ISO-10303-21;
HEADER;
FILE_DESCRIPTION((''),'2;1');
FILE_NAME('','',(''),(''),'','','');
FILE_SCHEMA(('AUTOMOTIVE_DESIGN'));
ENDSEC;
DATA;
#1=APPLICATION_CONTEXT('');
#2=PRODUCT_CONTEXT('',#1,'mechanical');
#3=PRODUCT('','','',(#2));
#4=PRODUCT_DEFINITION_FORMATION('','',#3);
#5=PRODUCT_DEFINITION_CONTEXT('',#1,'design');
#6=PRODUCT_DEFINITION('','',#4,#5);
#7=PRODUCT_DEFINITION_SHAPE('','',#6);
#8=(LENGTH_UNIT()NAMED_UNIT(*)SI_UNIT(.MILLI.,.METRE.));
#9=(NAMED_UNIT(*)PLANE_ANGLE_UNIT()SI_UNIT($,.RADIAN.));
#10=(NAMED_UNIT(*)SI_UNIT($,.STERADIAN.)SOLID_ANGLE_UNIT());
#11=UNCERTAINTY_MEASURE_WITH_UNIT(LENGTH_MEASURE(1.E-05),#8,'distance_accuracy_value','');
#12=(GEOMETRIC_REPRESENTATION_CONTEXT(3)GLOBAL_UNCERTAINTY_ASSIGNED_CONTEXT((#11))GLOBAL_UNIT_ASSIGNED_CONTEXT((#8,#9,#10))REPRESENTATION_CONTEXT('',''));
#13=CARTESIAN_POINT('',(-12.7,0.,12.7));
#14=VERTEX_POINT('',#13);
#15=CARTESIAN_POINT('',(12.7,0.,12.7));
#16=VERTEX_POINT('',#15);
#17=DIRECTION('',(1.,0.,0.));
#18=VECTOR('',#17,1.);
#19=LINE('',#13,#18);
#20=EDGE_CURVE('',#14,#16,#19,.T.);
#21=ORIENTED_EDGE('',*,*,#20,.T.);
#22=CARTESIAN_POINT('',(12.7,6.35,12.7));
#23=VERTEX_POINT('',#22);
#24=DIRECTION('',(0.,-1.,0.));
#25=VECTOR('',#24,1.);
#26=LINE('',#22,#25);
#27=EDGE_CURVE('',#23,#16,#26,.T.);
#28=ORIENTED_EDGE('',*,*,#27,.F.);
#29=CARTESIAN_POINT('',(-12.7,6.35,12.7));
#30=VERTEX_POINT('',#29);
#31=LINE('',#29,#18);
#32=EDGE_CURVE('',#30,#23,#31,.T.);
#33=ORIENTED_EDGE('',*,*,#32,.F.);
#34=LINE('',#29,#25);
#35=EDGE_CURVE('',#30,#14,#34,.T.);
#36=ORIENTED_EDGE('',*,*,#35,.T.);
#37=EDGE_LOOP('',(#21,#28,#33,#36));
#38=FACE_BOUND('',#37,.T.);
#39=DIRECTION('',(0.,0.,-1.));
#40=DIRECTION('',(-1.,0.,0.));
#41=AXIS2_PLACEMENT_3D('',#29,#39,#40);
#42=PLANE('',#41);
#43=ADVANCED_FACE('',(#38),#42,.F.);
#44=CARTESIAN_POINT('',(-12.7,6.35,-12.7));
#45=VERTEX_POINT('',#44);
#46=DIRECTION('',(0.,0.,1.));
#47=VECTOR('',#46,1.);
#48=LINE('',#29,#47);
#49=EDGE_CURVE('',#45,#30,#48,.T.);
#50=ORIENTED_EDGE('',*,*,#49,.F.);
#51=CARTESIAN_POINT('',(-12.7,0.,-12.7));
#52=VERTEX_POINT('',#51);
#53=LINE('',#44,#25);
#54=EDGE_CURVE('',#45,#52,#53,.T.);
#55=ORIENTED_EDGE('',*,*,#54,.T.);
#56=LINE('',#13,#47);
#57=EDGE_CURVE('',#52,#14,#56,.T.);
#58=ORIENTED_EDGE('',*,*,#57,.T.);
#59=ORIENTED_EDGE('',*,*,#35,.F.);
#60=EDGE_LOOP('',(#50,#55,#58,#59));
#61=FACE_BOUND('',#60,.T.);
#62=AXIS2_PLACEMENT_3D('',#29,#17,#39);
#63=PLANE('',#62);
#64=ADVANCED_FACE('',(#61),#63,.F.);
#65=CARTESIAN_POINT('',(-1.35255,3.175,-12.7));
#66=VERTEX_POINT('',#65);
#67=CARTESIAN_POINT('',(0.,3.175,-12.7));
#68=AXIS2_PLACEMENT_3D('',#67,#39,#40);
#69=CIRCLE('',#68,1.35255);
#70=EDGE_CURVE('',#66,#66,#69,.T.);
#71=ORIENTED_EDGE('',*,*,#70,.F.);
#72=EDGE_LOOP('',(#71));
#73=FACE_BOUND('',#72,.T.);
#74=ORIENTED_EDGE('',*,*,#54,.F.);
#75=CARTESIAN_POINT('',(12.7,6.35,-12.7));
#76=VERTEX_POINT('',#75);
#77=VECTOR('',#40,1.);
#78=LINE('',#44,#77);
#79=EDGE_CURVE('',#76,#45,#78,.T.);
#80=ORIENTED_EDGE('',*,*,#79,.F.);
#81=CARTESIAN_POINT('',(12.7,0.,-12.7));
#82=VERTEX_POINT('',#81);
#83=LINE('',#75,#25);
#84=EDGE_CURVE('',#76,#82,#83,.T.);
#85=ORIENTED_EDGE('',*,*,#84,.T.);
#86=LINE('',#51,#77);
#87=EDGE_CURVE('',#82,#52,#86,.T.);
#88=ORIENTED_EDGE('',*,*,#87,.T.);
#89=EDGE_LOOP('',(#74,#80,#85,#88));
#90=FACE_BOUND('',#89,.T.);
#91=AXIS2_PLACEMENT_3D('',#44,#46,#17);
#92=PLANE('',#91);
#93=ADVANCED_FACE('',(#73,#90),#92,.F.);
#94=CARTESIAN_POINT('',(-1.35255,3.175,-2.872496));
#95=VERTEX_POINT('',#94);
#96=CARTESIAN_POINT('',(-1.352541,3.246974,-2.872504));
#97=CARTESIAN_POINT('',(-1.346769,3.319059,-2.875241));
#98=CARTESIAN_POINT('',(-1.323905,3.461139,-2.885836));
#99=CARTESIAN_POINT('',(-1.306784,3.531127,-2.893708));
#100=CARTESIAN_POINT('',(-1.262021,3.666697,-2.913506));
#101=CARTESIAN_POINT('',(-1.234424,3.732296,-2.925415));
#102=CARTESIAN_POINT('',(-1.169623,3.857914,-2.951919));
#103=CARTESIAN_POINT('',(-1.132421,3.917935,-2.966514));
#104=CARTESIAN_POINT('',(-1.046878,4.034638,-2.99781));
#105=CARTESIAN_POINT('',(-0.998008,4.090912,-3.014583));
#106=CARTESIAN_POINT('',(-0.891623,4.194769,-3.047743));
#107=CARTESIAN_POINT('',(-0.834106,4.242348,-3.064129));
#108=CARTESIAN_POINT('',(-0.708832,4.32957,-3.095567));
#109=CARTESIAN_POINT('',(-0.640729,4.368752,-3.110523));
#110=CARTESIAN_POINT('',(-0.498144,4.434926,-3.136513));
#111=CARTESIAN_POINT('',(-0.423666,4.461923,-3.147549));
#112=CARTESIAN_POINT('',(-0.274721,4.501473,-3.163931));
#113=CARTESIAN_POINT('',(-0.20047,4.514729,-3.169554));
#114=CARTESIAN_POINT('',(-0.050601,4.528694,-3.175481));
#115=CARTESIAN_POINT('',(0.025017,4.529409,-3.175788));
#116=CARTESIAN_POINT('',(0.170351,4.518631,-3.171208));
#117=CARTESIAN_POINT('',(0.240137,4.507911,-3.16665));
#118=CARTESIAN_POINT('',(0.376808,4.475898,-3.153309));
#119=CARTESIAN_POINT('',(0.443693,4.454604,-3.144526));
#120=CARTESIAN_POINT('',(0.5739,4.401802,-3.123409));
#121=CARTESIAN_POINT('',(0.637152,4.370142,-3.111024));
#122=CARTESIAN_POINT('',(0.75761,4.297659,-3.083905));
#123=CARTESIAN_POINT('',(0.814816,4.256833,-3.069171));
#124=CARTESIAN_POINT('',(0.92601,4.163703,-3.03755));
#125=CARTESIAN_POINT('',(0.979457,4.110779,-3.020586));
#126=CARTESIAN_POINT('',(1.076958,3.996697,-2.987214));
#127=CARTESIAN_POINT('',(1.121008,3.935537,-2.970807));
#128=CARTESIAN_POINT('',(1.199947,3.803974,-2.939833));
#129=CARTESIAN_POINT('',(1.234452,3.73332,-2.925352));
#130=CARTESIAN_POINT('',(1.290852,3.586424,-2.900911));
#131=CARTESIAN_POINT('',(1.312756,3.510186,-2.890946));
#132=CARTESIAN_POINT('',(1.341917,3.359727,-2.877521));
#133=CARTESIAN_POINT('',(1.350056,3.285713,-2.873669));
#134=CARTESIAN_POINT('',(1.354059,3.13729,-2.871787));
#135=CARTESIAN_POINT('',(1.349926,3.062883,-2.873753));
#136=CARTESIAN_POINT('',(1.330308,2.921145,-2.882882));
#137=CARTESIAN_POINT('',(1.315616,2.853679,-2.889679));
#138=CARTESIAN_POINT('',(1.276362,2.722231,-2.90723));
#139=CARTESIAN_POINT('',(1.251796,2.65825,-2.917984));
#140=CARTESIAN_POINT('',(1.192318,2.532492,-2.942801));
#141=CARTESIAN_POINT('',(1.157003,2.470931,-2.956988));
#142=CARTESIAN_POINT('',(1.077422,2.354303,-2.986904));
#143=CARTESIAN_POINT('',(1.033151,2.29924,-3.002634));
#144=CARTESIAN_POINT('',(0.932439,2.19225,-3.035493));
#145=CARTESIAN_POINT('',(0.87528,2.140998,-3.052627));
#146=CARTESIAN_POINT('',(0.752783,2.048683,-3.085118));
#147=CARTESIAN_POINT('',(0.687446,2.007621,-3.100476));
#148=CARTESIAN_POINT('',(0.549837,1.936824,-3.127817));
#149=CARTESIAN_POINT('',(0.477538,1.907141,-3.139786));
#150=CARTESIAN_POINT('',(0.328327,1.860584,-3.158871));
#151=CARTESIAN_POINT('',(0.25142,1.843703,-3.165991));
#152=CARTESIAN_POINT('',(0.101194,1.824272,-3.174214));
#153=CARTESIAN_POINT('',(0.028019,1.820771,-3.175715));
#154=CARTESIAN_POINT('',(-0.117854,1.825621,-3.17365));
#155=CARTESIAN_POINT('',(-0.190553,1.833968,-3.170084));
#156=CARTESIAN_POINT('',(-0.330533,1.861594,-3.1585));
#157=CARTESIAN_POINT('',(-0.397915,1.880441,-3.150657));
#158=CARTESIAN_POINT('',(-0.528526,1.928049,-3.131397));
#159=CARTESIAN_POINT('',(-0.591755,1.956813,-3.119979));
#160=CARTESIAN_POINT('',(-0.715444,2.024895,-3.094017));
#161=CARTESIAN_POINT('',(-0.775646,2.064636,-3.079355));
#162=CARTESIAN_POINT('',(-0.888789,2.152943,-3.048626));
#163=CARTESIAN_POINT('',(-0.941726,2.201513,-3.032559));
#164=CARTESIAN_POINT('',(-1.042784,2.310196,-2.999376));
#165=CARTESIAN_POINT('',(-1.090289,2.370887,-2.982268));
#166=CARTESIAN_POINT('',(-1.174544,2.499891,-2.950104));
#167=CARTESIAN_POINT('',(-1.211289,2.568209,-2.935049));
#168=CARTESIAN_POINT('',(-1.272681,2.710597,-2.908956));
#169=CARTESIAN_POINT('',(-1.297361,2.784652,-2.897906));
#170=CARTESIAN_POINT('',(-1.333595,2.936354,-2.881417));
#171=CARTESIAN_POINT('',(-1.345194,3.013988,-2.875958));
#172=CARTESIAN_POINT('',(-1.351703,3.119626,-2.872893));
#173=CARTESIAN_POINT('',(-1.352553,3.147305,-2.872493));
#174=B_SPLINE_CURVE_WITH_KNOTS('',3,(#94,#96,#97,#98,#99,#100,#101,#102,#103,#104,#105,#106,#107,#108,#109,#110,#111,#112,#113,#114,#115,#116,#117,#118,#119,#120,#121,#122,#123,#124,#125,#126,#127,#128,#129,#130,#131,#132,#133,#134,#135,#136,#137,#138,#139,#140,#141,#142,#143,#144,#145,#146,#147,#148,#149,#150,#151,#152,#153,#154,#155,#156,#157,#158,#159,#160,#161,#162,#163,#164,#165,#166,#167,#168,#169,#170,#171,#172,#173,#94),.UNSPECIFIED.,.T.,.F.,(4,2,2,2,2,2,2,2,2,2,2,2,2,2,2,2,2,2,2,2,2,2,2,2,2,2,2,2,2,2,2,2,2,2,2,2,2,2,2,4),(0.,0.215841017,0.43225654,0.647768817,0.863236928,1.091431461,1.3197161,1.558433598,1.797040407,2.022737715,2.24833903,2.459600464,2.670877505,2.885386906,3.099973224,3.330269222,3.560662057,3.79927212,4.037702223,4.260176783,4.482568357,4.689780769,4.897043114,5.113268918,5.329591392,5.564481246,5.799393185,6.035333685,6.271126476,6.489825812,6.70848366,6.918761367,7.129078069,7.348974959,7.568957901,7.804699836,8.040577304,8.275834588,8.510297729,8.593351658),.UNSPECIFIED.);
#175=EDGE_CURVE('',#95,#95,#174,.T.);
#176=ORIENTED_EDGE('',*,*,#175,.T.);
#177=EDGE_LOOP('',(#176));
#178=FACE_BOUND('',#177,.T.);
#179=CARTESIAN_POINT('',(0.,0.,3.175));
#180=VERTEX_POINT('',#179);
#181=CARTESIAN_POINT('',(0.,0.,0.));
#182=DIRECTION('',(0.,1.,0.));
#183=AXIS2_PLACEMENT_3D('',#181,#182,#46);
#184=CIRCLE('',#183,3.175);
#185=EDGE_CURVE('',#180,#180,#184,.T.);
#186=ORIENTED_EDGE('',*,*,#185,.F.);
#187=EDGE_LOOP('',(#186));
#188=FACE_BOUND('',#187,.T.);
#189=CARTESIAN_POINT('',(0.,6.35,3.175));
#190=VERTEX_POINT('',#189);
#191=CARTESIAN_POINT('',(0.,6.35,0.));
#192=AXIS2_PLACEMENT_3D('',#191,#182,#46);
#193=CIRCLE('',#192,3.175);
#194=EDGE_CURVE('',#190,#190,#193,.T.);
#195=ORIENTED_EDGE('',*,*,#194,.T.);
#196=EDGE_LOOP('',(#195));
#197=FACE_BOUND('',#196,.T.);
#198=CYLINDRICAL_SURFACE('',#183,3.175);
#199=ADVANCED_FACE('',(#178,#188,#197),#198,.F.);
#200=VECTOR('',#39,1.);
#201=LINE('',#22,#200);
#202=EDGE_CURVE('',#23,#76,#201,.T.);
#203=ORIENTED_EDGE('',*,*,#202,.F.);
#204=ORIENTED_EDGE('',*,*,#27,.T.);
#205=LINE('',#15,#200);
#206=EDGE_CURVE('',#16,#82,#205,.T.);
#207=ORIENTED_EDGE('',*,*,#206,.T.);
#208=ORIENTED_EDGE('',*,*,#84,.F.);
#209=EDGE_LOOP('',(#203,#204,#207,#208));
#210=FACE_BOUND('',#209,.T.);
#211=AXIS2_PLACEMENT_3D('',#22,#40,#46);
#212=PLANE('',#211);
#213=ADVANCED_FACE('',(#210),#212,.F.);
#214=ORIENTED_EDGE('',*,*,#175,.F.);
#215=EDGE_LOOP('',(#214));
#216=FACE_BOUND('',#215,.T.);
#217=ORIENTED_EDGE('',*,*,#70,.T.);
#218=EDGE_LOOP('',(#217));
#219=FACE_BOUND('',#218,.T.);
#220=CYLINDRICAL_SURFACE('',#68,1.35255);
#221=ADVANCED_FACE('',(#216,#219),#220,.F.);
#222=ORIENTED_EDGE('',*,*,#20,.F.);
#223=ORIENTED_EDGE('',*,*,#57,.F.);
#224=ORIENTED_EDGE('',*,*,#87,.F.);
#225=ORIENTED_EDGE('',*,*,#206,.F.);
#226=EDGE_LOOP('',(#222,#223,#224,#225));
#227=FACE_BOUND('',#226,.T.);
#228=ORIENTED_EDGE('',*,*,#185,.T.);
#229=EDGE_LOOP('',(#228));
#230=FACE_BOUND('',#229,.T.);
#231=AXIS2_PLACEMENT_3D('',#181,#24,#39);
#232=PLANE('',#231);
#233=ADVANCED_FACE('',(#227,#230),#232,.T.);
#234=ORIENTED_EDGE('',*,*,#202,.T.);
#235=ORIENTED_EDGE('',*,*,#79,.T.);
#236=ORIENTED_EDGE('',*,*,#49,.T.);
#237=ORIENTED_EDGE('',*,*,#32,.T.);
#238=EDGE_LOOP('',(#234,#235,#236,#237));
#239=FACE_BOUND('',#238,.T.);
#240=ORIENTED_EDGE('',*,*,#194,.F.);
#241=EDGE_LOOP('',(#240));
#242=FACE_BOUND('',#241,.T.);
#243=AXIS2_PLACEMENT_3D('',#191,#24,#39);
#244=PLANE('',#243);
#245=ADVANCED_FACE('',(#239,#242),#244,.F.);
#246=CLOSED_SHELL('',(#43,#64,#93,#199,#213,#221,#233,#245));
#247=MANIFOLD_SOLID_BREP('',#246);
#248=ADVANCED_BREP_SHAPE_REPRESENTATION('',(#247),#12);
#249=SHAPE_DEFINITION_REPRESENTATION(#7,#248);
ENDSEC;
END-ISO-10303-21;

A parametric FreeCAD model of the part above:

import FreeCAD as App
import Part
import Sketcher

V = App.Vector
Q = App.Units.Quantity

doc = App.newDocument("Part")
body = doc.addObject("PartDesign::Body", "Body")

# Sketch on XZ plane
sketch1 = body.newObject("Sketcher::SketchObject", "Sketch")
sketch1.AttachmentSupport = (doc.getObject("XZ_Plane"), [""])
sketch1.MapMode = "FlatFace"
sketch1.addGeometry(Part.LineSegment(V(-13, -13, 0), V(-13, 13, 0)), False)
sketch1.addGeometry(Part.LineSegment(V(-13, 13, 0), V(13, 13, 0)), False)
sketch1.addGeometry(Part.LineSegment(V(13, 13, 0), V(13, -13, 0)), False)
sketch1.addGeometry(Part.LineSegment(V(13, -13, 0), V(-13, -13, 0)), False)
sketch1.addConstraint(Sketcher.Constraint("Coincident", 0, 2, 1, 1))
sketch1.addConstraint(Sketcher.Constraint("Coincident", 1, 2, 2, 1))
sketch1.addConstraint(Sketcher.Constraint("Coincident", 2, 2, 3, 1))
sketch1.addConstraint(Sketcher.Constraint("Coincident", 3, 2, 0, 1))
sketch1.addConstraint(Sketcher.Constraint("Vertical", 0))
sketch1.addConstraint(Sketcher.Constraint("Horizontal", 1))
sketch1.addConstraint(Sketcher.Constraint("Vertical", 2))
sketch1.addConstraint(Sketcher.Constraint("Horizontal", 3))
sketch1.addConstraint(Sketcher.Constraint("Symmetric", 0, 2, 2, 2, -1, 1))
sketch1.addConstraint(Sketcher.Constraint("Equal", 3, 0))
sketch1.addConstraint(Sketcher.Constraint("DistanceX", 1, 1, 1, 2, Q("1 in")))
pad1 = body.newObject("PartDesign::Pad", "Pad")
pad1.Profile = sketch1
pad1.Length = Q("0.25 in")
pad1.Reversed = True

# Sketch on XZ plane
sketch2 = body.newObject("Sketcher::SketchObject", "Sketch001")
sketch2.AttachmentSupport = (doc.getObject("XZ_Plane"), [""])
sketch2.MapMode = "FlatFace"
sketch2.AttachmentOffset = App.Placement(V(0, 0, -0.25 * 25.4), App.Rotation())
sketch2.addGeometry(Part.Circle(V(0, 0, 0), V(0, 0, 1), 3.2), False)
sketch2.addConstraint(Sketcher.Constraint("Coincident", 0, 3, -1, 1))
sketch2.addConstraint(Sketcher.Constraint("Diameter", 0, Q("0.25 in")))
pocket1 = body.newObject("PartDesign::Pocket", "Pocket")
pocket1.Profile = sketch2
pocket1.Type = "ThroughAll"
pocket1.Reversed = True

# Sketch on XY plane
sketch3 = body.newObject("Sketcher::SketchObject", "Sketch002")
sketch3.AttachmentSupport = (doc.getObject("XY_Plane"), [""])
sketch3.MapMode = "FlatFace"
sketch3.AttachmentOffset = App.Placement(V(0, 0, -0.5 * 25.4), App.Rotation())
sketch3.addGeometry(Part.Circle(V(0, 3.2, 0), V(0, 0, 1), 1.4), False)
sketch3.addConstraint(Sketcher.Constraint("PointOnObject", 0, 3, -2))
sketch3.addConstraint(Sketcher.Constraint("Diameter", 0, Q("0.1065 in")))
sketch3.addConstraint(Sketcher.Constraint("DistanceY", -1, 1, 0, 3, Q("0.125 in")))
pocket2 = body.newObject("PartDesign::Pocket", "Pocket001")
pocket2.Profile = sketch3
pocket2.Type = "UpToFirst"
pocket2.Reversed = True

doc.recompute()
